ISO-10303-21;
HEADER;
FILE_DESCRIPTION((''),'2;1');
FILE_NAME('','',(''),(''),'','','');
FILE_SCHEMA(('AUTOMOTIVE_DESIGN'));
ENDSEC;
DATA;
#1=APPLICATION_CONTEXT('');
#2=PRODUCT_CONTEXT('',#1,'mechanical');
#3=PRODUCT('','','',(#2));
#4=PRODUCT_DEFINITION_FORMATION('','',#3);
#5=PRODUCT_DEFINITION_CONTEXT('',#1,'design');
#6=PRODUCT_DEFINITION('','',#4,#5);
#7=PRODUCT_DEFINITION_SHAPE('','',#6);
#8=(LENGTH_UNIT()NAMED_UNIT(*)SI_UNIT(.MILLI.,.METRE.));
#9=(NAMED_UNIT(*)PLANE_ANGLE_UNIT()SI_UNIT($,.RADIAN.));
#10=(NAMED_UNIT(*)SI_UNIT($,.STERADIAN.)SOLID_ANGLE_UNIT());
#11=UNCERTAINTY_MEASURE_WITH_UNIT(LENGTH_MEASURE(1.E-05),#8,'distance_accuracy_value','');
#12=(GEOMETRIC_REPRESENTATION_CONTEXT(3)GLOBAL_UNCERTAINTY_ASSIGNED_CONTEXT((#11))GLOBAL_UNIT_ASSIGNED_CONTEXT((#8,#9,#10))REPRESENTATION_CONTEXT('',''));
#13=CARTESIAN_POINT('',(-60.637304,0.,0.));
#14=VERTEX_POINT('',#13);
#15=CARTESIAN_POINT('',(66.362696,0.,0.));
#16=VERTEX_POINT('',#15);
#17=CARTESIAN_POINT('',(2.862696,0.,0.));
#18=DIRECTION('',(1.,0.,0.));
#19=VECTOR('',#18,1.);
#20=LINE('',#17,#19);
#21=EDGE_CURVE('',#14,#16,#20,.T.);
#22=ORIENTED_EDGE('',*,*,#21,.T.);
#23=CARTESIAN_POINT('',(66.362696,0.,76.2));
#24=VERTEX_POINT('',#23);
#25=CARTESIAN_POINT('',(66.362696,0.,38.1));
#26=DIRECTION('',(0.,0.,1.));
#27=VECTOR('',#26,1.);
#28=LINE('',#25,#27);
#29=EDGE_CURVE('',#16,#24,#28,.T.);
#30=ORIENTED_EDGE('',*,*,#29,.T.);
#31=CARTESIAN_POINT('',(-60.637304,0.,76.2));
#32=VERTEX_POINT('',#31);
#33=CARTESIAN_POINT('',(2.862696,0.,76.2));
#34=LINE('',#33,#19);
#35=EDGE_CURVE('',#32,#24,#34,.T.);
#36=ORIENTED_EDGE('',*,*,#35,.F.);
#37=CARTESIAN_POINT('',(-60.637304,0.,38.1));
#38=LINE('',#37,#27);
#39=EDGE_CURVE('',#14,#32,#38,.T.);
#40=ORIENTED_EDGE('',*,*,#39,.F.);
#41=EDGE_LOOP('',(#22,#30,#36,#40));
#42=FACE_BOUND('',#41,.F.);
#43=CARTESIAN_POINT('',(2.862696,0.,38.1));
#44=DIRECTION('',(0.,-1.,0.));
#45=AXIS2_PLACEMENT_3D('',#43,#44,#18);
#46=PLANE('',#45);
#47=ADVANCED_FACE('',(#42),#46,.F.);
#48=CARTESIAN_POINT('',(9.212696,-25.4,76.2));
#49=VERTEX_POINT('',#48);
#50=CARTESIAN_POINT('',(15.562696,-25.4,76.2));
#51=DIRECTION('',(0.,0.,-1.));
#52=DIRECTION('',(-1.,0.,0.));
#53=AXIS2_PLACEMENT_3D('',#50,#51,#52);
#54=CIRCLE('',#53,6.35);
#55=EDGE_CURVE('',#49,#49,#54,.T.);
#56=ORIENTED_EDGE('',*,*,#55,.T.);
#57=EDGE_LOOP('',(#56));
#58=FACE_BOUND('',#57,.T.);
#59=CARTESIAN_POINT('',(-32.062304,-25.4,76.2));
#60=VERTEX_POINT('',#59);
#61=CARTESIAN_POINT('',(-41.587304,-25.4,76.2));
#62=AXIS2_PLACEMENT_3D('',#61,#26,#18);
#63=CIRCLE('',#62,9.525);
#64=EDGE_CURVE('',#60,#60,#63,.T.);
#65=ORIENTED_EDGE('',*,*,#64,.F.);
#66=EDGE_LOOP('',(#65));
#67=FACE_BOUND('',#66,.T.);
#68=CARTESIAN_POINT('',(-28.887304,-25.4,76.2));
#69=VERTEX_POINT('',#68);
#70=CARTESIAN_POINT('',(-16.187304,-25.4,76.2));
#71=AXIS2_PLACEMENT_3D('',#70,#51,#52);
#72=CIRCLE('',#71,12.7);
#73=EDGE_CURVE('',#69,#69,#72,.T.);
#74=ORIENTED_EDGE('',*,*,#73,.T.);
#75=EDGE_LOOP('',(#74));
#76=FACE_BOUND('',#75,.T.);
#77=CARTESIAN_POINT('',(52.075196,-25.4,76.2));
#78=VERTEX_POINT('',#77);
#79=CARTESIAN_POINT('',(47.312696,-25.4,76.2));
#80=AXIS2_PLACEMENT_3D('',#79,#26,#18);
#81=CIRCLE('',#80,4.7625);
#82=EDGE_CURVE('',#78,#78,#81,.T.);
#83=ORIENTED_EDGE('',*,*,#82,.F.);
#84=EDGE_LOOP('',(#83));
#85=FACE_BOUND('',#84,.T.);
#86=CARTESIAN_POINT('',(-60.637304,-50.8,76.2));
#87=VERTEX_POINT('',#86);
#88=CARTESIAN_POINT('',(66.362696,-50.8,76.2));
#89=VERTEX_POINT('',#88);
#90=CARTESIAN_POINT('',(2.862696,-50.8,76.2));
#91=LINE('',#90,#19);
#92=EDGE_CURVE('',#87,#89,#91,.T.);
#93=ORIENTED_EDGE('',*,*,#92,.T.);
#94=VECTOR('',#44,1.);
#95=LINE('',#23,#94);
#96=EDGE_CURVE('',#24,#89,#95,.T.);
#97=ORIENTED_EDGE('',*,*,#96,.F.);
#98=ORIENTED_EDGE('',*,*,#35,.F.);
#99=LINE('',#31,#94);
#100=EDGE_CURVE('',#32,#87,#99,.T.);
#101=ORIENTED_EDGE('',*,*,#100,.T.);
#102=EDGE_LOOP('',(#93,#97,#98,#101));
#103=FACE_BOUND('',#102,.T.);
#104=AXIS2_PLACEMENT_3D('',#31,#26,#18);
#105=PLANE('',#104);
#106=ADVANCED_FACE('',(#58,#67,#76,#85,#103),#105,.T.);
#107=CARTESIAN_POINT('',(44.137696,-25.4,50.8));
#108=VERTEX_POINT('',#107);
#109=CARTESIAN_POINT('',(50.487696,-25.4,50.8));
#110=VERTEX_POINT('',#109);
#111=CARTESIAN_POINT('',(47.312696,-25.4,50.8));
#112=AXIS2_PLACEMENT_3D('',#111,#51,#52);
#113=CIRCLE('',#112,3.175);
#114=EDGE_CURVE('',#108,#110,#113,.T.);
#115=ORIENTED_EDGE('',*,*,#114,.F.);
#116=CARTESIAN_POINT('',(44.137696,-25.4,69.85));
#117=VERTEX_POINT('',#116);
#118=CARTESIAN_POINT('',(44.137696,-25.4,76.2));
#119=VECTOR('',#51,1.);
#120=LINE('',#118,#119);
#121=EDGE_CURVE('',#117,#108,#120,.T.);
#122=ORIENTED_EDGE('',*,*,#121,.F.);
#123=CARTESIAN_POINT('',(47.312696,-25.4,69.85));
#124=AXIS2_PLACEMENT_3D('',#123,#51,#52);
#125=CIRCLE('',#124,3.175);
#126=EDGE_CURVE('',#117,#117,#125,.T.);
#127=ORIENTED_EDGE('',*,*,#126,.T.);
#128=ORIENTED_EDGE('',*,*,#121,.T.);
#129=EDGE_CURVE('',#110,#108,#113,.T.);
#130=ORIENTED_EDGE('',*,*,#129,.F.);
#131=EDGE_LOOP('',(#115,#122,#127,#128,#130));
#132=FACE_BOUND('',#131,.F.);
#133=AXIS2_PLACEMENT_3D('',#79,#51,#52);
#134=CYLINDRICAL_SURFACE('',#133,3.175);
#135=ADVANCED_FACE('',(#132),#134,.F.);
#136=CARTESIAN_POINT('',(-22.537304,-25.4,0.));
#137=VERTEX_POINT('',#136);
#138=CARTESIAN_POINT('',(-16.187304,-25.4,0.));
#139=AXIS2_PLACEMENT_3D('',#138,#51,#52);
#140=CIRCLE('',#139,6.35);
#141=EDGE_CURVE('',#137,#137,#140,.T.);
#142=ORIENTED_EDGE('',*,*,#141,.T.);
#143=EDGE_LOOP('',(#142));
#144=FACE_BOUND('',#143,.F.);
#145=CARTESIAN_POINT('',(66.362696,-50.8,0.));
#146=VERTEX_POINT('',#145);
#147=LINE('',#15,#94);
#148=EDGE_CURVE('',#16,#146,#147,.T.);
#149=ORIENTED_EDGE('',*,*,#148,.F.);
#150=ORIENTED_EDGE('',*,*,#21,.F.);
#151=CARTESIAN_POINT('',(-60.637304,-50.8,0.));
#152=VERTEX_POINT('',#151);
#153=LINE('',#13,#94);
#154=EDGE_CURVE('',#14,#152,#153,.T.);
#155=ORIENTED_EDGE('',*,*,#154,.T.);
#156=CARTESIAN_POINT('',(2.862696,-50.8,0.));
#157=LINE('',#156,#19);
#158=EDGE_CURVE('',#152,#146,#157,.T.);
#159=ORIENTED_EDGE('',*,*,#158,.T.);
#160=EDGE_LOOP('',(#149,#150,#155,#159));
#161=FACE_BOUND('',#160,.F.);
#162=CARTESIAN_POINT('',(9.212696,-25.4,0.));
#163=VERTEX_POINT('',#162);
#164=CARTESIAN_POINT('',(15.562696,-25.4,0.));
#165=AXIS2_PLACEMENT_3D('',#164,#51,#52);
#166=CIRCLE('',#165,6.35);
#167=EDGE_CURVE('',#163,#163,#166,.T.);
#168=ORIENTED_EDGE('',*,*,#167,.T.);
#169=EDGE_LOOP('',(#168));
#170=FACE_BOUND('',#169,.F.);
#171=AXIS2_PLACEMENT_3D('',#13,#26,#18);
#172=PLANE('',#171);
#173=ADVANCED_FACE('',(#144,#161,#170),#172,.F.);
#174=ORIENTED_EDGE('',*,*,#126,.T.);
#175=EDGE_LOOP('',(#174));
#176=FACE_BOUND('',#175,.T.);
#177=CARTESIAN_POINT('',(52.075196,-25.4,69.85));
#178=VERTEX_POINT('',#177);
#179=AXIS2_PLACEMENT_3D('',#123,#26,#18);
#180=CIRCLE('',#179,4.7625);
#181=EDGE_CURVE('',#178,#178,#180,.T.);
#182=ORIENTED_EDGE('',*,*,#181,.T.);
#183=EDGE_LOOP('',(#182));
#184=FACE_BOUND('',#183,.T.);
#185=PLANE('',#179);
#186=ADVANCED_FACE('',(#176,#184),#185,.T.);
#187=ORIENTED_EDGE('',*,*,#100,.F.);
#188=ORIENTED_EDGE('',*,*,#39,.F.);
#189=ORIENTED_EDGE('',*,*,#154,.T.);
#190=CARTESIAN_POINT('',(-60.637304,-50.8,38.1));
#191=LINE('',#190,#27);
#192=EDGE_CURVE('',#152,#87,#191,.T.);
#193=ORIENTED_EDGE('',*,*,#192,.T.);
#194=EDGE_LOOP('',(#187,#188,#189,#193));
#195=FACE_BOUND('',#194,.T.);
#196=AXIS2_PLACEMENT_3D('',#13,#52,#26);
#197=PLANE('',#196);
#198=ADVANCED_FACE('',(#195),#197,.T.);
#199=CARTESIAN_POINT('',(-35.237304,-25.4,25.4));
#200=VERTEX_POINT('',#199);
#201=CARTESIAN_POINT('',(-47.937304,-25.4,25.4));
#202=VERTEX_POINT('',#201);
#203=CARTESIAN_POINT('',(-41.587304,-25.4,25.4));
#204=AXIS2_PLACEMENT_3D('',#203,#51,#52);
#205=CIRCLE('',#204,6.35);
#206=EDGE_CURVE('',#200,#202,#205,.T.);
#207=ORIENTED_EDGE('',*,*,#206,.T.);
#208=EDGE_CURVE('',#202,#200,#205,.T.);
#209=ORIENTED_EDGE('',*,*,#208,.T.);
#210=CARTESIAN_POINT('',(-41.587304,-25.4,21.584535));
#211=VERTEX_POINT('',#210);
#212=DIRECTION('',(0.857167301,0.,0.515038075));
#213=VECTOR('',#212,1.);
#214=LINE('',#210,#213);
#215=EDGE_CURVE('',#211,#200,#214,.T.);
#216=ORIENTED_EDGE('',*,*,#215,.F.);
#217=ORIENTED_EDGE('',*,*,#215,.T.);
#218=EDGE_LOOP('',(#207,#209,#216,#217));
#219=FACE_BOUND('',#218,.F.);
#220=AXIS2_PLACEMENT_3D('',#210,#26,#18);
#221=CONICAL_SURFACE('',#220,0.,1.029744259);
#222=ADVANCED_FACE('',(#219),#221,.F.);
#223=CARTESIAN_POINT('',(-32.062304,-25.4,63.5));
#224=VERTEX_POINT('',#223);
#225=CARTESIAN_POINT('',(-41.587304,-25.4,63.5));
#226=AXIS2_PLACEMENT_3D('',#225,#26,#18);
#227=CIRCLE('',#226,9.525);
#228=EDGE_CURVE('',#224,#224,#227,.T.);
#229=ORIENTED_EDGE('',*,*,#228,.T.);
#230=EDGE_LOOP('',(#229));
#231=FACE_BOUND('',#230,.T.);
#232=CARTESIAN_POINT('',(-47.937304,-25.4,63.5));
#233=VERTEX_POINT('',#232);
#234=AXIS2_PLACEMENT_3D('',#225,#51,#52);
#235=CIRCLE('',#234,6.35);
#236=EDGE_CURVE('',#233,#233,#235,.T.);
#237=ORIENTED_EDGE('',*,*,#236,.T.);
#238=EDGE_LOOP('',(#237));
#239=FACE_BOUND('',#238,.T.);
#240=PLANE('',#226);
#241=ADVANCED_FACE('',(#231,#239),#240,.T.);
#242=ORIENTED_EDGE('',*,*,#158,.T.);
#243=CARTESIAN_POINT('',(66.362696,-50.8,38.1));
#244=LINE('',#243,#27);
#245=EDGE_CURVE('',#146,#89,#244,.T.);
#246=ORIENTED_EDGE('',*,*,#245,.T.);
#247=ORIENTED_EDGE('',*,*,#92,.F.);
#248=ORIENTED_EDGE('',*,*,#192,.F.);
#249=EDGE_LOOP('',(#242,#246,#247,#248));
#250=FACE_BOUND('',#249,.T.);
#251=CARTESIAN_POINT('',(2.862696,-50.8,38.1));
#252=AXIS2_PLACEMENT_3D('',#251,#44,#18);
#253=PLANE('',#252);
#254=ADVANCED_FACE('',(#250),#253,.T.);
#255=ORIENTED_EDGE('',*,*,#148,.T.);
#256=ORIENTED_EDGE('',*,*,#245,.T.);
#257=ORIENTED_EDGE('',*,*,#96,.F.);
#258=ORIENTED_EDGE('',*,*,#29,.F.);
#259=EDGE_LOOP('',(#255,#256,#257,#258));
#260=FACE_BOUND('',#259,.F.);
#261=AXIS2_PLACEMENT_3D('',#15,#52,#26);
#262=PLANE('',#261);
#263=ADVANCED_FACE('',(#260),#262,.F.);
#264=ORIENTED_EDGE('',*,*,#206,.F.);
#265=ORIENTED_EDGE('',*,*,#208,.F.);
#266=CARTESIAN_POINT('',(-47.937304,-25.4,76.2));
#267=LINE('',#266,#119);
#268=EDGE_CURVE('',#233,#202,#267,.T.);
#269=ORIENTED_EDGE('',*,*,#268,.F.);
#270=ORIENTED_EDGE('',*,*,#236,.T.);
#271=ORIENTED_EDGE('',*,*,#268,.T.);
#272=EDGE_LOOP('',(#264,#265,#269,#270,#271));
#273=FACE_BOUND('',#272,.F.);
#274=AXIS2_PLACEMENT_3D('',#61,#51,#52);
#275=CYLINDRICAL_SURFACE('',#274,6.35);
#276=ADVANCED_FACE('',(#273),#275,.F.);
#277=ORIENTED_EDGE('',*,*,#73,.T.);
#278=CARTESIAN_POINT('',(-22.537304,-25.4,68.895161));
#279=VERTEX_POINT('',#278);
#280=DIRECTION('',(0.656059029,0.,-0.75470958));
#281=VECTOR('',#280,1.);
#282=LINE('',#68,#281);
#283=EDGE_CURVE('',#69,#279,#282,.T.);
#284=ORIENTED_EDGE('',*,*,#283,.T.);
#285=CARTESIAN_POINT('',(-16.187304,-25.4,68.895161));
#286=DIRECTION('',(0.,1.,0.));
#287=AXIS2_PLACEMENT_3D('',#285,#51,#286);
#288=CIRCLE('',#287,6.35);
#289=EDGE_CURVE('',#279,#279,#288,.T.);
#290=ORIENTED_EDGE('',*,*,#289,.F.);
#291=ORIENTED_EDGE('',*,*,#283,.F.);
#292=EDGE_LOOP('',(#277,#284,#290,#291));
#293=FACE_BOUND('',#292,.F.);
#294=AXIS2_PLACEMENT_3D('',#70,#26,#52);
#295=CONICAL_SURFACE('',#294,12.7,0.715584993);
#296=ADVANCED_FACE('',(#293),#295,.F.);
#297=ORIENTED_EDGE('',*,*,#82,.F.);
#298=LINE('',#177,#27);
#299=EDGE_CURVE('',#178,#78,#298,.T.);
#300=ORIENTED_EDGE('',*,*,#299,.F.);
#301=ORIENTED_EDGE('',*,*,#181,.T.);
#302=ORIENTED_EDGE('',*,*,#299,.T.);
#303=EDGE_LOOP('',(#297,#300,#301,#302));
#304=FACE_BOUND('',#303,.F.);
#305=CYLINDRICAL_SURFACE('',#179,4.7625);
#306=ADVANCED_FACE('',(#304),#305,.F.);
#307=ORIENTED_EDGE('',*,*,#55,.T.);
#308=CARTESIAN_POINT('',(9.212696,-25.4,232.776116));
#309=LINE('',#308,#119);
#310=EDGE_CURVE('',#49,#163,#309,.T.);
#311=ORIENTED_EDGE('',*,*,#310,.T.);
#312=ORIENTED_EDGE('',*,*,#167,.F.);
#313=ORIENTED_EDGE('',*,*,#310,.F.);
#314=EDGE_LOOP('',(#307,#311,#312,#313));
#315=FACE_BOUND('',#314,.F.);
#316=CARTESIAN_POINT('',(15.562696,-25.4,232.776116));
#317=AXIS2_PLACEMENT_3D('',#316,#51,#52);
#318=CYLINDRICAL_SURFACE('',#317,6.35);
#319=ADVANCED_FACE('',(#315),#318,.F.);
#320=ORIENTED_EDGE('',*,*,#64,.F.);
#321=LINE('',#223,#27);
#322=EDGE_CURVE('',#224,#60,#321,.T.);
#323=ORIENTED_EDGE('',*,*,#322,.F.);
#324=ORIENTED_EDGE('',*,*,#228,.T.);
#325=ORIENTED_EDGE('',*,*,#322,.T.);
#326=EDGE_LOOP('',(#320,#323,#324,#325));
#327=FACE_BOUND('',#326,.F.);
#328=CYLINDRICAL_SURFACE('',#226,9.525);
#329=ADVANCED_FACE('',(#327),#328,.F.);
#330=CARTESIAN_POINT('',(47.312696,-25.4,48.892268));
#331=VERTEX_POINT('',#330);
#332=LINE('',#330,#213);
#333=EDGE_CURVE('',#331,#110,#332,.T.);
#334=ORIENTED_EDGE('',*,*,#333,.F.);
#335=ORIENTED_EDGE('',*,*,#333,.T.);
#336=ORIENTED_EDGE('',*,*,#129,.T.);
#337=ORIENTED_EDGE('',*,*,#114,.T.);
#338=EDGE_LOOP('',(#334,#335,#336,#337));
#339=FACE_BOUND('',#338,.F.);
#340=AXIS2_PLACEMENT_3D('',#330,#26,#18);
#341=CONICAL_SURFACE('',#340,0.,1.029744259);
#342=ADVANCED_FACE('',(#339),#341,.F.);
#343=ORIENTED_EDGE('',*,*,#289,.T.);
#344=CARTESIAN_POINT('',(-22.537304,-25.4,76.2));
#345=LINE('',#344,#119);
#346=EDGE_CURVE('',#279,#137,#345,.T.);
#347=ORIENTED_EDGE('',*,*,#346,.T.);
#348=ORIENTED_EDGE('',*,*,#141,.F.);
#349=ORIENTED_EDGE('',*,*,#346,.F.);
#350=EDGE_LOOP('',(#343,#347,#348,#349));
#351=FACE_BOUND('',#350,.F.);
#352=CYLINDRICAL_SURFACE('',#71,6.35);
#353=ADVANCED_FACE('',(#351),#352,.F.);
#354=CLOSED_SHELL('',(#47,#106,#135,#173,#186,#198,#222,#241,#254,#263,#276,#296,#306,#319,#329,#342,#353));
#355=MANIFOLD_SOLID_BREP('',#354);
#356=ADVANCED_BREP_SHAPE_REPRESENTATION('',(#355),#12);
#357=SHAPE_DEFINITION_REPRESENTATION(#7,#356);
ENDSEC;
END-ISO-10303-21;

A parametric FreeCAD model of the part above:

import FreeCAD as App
import Part
import Sketcher

V = App.Vector
Q = App.Units.Quantity


def add_polygon(sketch, points):
    """Adds a closed chain of lines whose ends are joined by coincident constraints."""
    first, n = sketch.GeometryCount, len(points)
    for a, b in zip(points, points[1:] + points[:1]):
        sketch.addGeometry(Part.LineSegment(App.Vector(*a, 0), App.Vector(*b, 0)), False)
    for i in range(n):
        sketch.addConstraint(Sketcher.Constraint("Coincident", first + i, 2, first + (i + 1) % n, 1))

doc = App.newDocument("Part")
body = doc.addObject("PartDesign::Body", "Body")

# Sketch on XZ plane
sketch1 = body.newObject("Sketcher::SketchObject", "Sketch")
sketch1.AttachmentSupport = (doc.getObject("XZ_Plane"), [""])
sketch1.MapMode = "FlatFace"
add_polygon(sketch1, [(-61, 76), (-61, 0), (66, 0), (66, 76)])  # lines 0-3
sketch1.addConstraint([
    Sketcher.Constraint("Vertical", 0),
    Sketcher.Constraint("Horizontal", 1),
    Sketcher.Constraint("Vertical", 2),
    Sketcher.Constraint("Horizontal", 3),
    Sketcher.Constraint("PointOnObject", 0, 2, -1),
    Sketcher.Constraint("DistanceX", 1, 1, 1, 2, Q("5 in")),
    Sketcher.Constraint("DistanceY", 0, 2, 0, 1, Q("3 in")),
    Sketcher.Constraint("DistanceX", 0, 2, -1, 1, Q("60.637304 mm")),
])
pad1 = body.newObject("PartDesign::Pad", "Pad")
pad1.Profile = sketch1
pad1.Length = Q("2 in")

# Sketch on XY plane
sketch2 = body.newObject("Sketcher::SketchObject", "Sketch001")
sketch2.AttachmentSupport = (doc.getObject("XY_Plane"), [""])
sketch2.MapMode = "FlatFace"
sketch2.AttachmentOffset = App.Placement(V(0, 0, 3 * 25.4), App.Rotation())
sketch2.addGeometry(Part.Circle(V(-42, -25, 0), V(0, 0, 1), 6), False)
sketch2.addConstraint([
    Sketcher.Constraint("Diameter", 0, Q("0.5 in")),
    Sketcher.Constraint("DistanceY", 0, 3, -1, 1, Q("1 in")),
    Sketcher.Constraint("DistanceX", 0, 3, -1, 1, Q("41.587304 mm")),
])
doc.recompute()
hole = body.newObject("PartDesign::Hole", "Hole")
hole.Profile = sketch2
hole.ThreadType = "None"
hole.Diameter = Q("0.5 in")
hole.DepthType = "Dimension"
hole.Depth = Q("2 in")
hole.DrillPoint = "Angled"
hole.DrillPointAngle = 118
hole.HoleCutType = "Counterbore"
hole.HoleCutDiameter = Q("0.75 in")
hole.HoleCutDepth = Q("0.5 in")

# Sketch on XY plane
sketch3 = body.newObject("Sketcher::SketchObject", "Sketch002")
sketch3.AttachmentSupport = (doc.getObject("XY_Plane"), [""])
sketch3.MapMode = "FlatFace"
sketch3.AttachmentOffset = App.Placement(V(0, 0, 3 * 25.4), App.Rotation())
sketch3.addGeometry(Part.Circle(V(-16, -25, 0), V(0, 0, 1), 6), False)
sketch3.addConstraint([
    Sketcher.Constraint("Diameter", 0, Q("0.5 in")),
    Sketcher.Constraint("DistanceY", 0, 3, -1, 1, Q("1 in")),
    Sketcher.Constraint("DistanceX", 0, 3, -1, 1, Q("16.187304 mm")),
])
doc.recompute()
hole2 = body.newObject("PartDesign::Hole", "Hole001")
hole2.Profile = sketch3
hole2.ThreadType = "None"
hole2.Diameter = Q("0.5 in")
hole2.DepthType = "ThroughAll"
hole2.HoleCutType = "Countersink"
hole2.HoleCutDiameter = Q("1 in")
hole2.HoleCutCountersinkAngle = 82

# Sketch on XY plane
sketch4 = body.newObject("Sketcher::SketchObject", "Sketch003")
sketch4.AttachmentSupport = (doc.getObject("XY_Plane"), [""])
sketch4.MapMode = "FlatFace"
sketch4.AttachmentOffset = App.Placement(V(0, 0, 3 * 25.4), App.Rotation())
sketch4.addGeometry(Part.Circle(V(16, -25, 0), V(0, 0, 1), 6), False)
sketch4.addConstraint([
    Sketcher.Constraint("Diameter", 0, Q("0.5 in")),
    Sketcher.Constraint("DistanceY", 0, 3, -1, 1, Q("1 in")),
    Sketcher.Constraint("DistanceX", -1, 1, 0, 3, Q("15.562696 mm")),
])
doc.recompute()
hole3 = body.newObject("PartDesign::Hole", "Hole002")
hole3.Profile = sketch4
hole3.ThreadType = "None"
hole3.Diameter = Q("0.5 in")
hole3.DepthType = "ThroughAll"

# Sketch on XY plane
sketch5 = body.newObject("Sketcher::SketchObject", "Sketch004")
sketch5.AttachmentSupport = (doc.getObject("XY_Plane"), [""])
sketch5.MapMode = "FlatFace"
sketch5.AttachmentOffset = App.Placement(V(0, 0, 3 * 25.4), App.Rotation())
sketch5.addGeometry(Part.Circle(V(47.3, -25.4, 0), V(0, 0, 1), 3.2), False)
sketch5.addConstraint([
    Sketcher.Constraint("Diameter", 0, Q("0.25 in")),
    Sketcher.Constraint("DistanceY", 0, 3, -1, 1, Q("1 in")),
    Sketcher.Constraint("DistanceX", -1, 1, 0, 3, Q("47.312696 mm")),
])
doc.recompute()
hole4 = body.newObject("PartDesign::Hole", "Hole003")
hole4.Profile = sketch5
hole4.ThreadType = "None"
hole4.Diameter = Q("0.25 in")
hole4.DepthType = "Dimension"
hole4.Depth = Q("1 in")
hole4.DrillPoint = "Angled"
hole4.DrillPointAngle = 118
hole4.HoleCutType = "Counterbore"
hole4.HoleCutDiameter = Q("0.375 in")
hole4.HoleCutDepth = Q("0.25 in")

doc.recompute()
